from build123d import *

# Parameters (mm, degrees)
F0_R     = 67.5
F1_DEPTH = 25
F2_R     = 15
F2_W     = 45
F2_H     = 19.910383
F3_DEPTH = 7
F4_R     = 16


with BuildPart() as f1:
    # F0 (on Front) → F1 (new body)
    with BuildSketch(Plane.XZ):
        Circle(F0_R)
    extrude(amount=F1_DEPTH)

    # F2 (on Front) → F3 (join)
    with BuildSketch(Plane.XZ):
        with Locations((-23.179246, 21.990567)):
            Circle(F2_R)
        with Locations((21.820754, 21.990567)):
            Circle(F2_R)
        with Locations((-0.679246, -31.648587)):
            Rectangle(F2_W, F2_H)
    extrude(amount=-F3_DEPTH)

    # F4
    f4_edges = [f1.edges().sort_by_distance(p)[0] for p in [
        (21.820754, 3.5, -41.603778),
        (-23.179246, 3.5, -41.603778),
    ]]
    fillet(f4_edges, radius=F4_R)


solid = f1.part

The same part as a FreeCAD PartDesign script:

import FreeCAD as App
import Part
import Sketcher
from FreeCAD import Vector


def edges_at(feature, points):
    """Names of the edges that pass closest to the given points."""
    edges = feature.Shape.Edges
    near = lambda p: min(range(len(edges)), key=lambda i: edges[i].distToShape(Part.Vertex(*p))[0])
    return sorted({f"Edge{near(p) + 1}" for p in points})

doc = App.newDocument("Part")
body = doc.addObject("PartDesign::Body", "Body")

sketch1 = body.newObject("Sketcher::SketchObject", "Sketch")
sketch1.AttachmentSupport = (doc.getObject("XZ_Plane"), [""])
sketch1.MapMode = "FlatFace"
sketch1.addGeometry(Part.Circle(Vector(0, 0, 0), Vector(0, 0, 1), 68), False)
sketch1.addConstraint(Sketcher.Constraint("Coincident", 0, 3, -1, 1))
sketch1.addConstraint(Sketcher.Constraint("Diameter", 0, 135.0))
pad1 = body.newObject("PartDesign::Pad", "Pad")
pad1.Profile = sketch1
pad1.Length = 25

sketch2 = body.newObject("Sketcher::SketchObject", "Sketch001")
sketch2.AttachmentSupport = (doc.getObject("XZ_Plane"), [""])
sketch2.MapMode = "FlatFace"
sketch2.addGeometry(Part.Circle(Vector(-23, 22, 0), Vector(0, 0, 1), 15), False)
sketch2.addGeometry(Part.Circle(Vector(22, 22, 0), Vector(0, 0, 1), 15), False)
sketch2.addGeometry(Part.LineSegment(Vector(-23, -22, 0), Vector(-23, -42, 0)), False)
sketch2.addGeometry(Part.LineSegment(Vector(-23, -42, 0), Vector(22, -42, 0)), False)
sketch2.addGeometry(Part.LineSegment(Vector(22, -42, 0), Vector(22, -22, 0)), False)
sketch2.addGeometry(Part.LineSegment(Vector(22, -22, 0), Vector(-23, -22, 0)), False)
sketch2.addConstraint(Sketcher.Constraint("Coincident", 2, 2, 3, 1))
sketch2.addConstraint(Sketcher.Constraint("Coincident", 3, 2, 4, 1))
sketch2.addConstraint(Sketcher.Constraint("Coincident", 4, 2, 5, 1))
sketch2.addConstraint(Sketcher.Constraint("Coincident", 5, 2, 2, 1))
sketch2.addConstraint(Sketcher.Constraint("Vertical", 2))
sketch2.addConstraint(Sketcher.Constraint("Horizontal", 3))
sketch2.addConstraint(Sketcher.Constraint("Vertical", 4))
sketch2.addConstraint(Sketcher.Constraint("Horizontal", 5))
sketch2.addConstraint(Sketcher.Constraint("Equal", 0, 1))
sketch2.addConstraint(Sketcher.Constraint("Horizontal", 0, 3, 1, 3))
sketch2.addConstraint(Sketcher.Constraint("Vertical", 0, 3, 2, 2))
sketch2.addConstraint(Sketcher.Constraint("Vertical", 1, 3, 3, 2))
sketch2.addConstraint(Sketcher.Constraint("Diameter", 0, 30.0))
sketch2.addConstraint(Sketcher.Constraint("DistanceX", 3, 1, 3, 2, 45.0))
sketch2.addConstraint(Sketcher.Constraint("DistanceY", 2, 2, 2, 1, 19.910383))
sketch2.addConstraint(Sketcher.Constraint("DistanceY", 2, 2, -1, 1, 41.603778))
sketch2.addConstraint(Sketcher.Constraint("DistanceX", 0, 3, -1, 1, 23.179246))
sketch2.addConstraint(Sketcher.Constraint("DistanceY", -1, 1, 0, 3, 21.990567))
pad2 = body.newObject("PartDesign::Pad", "Pad001")
pad2.Profile = sketch2
pad2.Length = 7
pad2.Reversed = True
doc.recompute()

fillet = body.newObject("PartDesign::Fillet", "Fillet")
fillet.Base = (pad2, edges_at(pad2, [(21.821, 3.5, -41.604), (-23.179, 3.5, -41.604)]))
fillet.Radius = 16

doc.recompute()
